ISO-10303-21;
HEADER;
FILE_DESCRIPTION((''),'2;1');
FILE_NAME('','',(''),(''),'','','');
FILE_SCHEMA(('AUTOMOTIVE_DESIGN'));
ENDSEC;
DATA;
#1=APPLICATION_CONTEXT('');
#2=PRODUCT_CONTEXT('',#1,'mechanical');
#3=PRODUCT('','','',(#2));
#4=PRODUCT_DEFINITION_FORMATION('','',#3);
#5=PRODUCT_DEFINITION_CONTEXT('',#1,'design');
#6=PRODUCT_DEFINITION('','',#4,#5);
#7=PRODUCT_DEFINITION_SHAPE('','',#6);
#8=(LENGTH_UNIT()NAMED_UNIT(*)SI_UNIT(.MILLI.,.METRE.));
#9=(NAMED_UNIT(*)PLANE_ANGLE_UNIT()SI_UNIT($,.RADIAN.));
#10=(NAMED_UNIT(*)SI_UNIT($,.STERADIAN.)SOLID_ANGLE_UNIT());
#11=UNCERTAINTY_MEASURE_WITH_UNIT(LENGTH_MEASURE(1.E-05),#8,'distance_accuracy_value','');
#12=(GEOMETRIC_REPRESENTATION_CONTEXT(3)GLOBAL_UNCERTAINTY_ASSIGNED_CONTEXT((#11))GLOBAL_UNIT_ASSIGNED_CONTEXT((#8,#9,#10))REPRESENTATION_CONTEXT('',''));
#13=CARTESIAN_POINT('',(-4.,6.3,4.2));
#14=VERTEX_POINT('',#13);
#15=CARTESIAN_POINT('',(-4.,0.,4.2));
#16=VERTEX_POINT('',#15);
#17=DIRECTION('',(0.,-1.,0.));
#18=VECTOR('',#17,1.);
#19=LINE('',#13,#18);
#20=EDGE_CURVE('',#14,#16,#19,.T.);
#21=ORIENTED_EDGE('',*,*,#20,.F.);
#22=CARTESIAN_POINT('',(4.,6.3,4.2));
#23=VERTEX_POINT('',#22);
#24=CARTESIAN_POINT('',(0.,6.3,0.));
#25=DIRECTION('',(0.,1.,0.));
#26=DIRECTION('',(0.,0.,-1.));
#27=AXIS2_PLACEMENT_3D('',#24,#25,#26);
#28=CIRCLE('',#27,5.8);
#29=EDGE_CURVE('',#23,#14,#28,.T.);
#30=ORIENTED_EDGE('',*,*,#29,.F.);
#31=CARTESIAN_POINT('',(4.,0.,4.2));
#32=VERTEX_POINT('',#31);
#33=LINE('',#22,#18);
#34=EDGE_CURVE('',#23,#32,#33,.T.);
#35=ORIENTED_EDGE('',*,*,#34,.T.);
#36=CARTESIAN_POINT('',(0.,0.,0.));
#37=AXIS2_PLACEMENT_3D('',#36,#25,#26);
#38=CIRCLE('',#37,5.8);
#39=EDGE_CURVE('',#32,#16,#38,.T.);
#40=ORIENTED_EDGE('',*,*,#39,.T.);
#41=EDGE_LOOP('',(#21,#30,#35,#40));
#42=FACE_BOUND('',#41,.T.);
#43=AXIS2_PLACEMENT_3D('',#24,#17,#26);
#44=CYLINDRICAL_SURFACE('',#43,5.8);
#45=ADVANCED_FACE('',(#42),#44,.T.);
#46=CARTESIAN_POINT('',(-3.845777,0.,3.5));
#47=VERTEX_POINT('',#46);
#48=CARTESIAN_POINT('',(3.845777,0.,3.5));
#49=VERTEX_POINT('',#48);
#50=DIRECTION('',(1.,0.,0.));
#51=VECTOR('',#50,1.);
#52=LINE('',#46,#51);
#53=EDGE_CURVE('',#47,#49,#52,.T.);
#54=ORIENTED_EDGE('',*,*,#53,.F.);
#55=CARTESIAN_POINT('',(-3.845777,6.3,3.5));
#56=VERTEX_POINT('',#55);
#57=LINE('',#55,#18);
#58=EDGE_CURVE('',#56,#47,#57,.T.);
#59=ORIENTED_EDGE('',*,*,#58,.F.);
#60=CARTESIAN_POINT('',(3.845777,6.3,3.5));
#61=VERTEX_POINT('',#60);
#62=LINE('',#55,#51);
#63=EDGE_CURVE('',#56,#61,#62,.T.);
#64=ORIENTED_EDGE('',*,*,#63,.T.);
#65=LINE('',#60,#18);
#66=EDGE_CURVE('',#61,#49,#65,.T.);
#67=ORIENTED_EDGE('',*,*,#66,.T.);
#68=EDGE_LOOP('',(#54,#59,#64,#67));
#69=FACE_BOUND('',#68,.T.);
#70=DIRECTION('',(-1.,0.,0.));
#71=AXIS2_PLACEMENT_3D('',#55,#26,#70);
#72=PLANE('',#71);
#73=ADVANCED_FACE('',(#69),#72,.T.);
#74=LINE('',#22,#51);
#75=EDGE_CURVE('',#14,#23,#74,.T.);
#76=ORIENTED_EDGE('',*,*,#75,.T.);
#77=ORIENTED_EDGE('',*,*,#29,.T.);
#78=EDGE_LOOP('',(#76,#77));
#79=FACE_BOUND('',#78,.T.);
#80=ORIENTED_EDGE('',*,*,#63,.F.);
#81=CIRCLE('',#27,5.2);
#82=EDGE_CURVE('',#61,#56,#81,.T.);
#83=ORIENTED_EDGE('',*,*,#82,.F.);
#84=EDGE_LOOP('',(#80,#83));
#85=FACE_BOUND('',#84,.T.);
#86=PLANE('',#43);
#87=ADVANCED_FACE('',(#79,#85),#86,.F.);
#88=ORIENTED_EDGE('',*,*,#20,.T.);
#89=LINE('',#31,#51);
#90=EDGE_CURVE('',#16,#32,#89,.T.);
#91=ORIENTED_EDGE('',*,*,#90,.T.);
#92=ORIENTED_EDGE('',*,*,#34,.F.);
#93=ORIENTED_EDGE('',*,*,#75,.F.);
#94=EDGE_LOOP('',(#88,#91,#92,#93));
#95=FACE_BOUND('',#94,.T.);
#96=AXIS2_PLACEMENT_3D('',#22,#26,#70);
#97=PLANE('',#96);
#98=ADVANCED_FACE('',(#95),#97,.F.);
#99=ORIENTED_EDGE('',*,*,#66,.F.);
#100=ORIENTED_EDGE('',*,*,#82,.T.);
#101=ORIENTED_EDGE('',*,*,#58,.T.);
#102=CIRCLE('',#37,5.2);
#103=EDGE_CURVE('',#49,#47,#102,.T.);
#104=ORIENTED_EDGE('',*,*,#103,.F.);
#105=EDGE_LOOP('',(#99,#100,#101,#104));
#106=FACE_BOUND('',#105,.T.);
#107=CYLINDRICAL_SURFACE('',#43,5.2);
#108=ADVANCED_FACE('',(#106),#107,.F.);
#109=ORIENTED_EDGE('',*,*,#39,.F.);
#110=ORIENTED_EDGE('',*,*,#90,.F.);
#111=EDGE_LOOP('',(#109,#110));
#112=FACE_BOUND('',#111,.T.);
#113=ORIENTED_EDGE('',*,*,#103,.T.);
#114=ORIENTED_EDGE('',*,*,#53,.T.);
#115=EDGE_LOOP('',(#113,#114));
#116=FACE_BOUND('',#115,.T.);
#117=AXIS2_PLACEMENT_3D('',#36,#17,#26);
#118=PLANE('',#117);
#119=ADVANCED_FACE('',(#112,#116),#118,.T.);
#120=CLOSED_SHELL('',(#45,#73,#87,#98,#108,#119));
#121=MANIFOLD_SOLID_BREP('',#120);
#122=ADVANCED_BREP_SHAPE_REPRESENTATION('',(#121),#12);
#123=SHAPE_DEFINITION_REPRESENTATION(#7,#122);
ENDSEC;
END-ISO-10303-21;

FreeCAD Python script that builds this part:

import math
import FreeCAD as App
import Part
import Sketcher
from FreeCAD import Vector
Q = App.Units.Quantity

doc = App.newDocument("Part")
params = doc.addObject("Spreadsheet::Sheet", "Params")
for row, (alias, value) in enumerate([
    ("sketch1_radius", "5.8 mm"),
    ("sketch1_radius2", "5.2 mm"),
    ("sketch1_width", "8 mm"),
    ("pad1_length", "6.3 mm"),
], start=1):
    params.set(f"A{row}", alias)
    params.set(f"B{row}", "=" + value)
    params.setAlias(f"B{row}", alias)

body = doc.addObject("PartDesign::Body", "Body")

sketch1 = body.newObject("Sketcher::SketchObject", "Sketch")
sketch1.AttachmentSupport = (doc.getObject("XZ_Plane"), [""])
sketch1.MapMode = "FlatFace"
sketch1.addGeometry([
    Part.LineSegment(Vector(-4, 4, 0), Vector(4, 4, 0)),
    Part.ArcOfCircle(Part.Circle(Vector(0, 0, 0), Vector(0, 0, 1), 6), math.radians(134), math.radians(406)),
    Part.ArcOfCircle(Part.Circle(Vector(0, 0, 0), Vector(0, 0, 1), 5), math.radians(138), math.radians(402)),
    Part.LineSegment(Vector(4, 4, 0), Vector(-4, 4, 0)),
], False)
sketch1.addConstraint([
    Sketcher.Constraint("Coincident", 0, 1, 1, 1),
    Sketcher.Constraint("Coincident", 1, 2, 0, 2),
    Sketcher.Constraint("Coincident", 2, 1, 3, 2),
    Sketcher.Constraint("Coincident", 3, 1, 2, 2),
    Sketcher.Constraint("Horizontal", 0),
    Sketcher.Constraint("Horizontal", 3),
    Sketcher.Constraint("Coincident", 1, 3, -1, 1),
    Sketcher.Constraint("Coincident", 2, 3, -1, 1),
    Sketcher.Constraint("Radius", 1, Q("5.8 mm")),
    Sketcher.Constraint("Radius", 2, Q("5.2 mm")),
    Sketcher.Constraint("DistanceX", 0, 1, 0, 2, Q("8 mm")),
    Sketcher.Constraint("DistanceY", -1, 1, 2, 1, Q("3.5 mm")),
])
sketch1.setExpression("Constraints[8]", "Params.sketch1_radius")
sketch1.setExpression("Constraints[9]", "Params.sketch1_radius2")
sketch1.setExpression("Constraints[10]", "Params.sketch1_width")
pad1 = body.newObject("PartDesign::Pad", "Pad")
pad1.Profile = sketch1
pad1.setExpression("Length", "Params.pad1_length")
pad1.Reversed = True

doc.recompute()
